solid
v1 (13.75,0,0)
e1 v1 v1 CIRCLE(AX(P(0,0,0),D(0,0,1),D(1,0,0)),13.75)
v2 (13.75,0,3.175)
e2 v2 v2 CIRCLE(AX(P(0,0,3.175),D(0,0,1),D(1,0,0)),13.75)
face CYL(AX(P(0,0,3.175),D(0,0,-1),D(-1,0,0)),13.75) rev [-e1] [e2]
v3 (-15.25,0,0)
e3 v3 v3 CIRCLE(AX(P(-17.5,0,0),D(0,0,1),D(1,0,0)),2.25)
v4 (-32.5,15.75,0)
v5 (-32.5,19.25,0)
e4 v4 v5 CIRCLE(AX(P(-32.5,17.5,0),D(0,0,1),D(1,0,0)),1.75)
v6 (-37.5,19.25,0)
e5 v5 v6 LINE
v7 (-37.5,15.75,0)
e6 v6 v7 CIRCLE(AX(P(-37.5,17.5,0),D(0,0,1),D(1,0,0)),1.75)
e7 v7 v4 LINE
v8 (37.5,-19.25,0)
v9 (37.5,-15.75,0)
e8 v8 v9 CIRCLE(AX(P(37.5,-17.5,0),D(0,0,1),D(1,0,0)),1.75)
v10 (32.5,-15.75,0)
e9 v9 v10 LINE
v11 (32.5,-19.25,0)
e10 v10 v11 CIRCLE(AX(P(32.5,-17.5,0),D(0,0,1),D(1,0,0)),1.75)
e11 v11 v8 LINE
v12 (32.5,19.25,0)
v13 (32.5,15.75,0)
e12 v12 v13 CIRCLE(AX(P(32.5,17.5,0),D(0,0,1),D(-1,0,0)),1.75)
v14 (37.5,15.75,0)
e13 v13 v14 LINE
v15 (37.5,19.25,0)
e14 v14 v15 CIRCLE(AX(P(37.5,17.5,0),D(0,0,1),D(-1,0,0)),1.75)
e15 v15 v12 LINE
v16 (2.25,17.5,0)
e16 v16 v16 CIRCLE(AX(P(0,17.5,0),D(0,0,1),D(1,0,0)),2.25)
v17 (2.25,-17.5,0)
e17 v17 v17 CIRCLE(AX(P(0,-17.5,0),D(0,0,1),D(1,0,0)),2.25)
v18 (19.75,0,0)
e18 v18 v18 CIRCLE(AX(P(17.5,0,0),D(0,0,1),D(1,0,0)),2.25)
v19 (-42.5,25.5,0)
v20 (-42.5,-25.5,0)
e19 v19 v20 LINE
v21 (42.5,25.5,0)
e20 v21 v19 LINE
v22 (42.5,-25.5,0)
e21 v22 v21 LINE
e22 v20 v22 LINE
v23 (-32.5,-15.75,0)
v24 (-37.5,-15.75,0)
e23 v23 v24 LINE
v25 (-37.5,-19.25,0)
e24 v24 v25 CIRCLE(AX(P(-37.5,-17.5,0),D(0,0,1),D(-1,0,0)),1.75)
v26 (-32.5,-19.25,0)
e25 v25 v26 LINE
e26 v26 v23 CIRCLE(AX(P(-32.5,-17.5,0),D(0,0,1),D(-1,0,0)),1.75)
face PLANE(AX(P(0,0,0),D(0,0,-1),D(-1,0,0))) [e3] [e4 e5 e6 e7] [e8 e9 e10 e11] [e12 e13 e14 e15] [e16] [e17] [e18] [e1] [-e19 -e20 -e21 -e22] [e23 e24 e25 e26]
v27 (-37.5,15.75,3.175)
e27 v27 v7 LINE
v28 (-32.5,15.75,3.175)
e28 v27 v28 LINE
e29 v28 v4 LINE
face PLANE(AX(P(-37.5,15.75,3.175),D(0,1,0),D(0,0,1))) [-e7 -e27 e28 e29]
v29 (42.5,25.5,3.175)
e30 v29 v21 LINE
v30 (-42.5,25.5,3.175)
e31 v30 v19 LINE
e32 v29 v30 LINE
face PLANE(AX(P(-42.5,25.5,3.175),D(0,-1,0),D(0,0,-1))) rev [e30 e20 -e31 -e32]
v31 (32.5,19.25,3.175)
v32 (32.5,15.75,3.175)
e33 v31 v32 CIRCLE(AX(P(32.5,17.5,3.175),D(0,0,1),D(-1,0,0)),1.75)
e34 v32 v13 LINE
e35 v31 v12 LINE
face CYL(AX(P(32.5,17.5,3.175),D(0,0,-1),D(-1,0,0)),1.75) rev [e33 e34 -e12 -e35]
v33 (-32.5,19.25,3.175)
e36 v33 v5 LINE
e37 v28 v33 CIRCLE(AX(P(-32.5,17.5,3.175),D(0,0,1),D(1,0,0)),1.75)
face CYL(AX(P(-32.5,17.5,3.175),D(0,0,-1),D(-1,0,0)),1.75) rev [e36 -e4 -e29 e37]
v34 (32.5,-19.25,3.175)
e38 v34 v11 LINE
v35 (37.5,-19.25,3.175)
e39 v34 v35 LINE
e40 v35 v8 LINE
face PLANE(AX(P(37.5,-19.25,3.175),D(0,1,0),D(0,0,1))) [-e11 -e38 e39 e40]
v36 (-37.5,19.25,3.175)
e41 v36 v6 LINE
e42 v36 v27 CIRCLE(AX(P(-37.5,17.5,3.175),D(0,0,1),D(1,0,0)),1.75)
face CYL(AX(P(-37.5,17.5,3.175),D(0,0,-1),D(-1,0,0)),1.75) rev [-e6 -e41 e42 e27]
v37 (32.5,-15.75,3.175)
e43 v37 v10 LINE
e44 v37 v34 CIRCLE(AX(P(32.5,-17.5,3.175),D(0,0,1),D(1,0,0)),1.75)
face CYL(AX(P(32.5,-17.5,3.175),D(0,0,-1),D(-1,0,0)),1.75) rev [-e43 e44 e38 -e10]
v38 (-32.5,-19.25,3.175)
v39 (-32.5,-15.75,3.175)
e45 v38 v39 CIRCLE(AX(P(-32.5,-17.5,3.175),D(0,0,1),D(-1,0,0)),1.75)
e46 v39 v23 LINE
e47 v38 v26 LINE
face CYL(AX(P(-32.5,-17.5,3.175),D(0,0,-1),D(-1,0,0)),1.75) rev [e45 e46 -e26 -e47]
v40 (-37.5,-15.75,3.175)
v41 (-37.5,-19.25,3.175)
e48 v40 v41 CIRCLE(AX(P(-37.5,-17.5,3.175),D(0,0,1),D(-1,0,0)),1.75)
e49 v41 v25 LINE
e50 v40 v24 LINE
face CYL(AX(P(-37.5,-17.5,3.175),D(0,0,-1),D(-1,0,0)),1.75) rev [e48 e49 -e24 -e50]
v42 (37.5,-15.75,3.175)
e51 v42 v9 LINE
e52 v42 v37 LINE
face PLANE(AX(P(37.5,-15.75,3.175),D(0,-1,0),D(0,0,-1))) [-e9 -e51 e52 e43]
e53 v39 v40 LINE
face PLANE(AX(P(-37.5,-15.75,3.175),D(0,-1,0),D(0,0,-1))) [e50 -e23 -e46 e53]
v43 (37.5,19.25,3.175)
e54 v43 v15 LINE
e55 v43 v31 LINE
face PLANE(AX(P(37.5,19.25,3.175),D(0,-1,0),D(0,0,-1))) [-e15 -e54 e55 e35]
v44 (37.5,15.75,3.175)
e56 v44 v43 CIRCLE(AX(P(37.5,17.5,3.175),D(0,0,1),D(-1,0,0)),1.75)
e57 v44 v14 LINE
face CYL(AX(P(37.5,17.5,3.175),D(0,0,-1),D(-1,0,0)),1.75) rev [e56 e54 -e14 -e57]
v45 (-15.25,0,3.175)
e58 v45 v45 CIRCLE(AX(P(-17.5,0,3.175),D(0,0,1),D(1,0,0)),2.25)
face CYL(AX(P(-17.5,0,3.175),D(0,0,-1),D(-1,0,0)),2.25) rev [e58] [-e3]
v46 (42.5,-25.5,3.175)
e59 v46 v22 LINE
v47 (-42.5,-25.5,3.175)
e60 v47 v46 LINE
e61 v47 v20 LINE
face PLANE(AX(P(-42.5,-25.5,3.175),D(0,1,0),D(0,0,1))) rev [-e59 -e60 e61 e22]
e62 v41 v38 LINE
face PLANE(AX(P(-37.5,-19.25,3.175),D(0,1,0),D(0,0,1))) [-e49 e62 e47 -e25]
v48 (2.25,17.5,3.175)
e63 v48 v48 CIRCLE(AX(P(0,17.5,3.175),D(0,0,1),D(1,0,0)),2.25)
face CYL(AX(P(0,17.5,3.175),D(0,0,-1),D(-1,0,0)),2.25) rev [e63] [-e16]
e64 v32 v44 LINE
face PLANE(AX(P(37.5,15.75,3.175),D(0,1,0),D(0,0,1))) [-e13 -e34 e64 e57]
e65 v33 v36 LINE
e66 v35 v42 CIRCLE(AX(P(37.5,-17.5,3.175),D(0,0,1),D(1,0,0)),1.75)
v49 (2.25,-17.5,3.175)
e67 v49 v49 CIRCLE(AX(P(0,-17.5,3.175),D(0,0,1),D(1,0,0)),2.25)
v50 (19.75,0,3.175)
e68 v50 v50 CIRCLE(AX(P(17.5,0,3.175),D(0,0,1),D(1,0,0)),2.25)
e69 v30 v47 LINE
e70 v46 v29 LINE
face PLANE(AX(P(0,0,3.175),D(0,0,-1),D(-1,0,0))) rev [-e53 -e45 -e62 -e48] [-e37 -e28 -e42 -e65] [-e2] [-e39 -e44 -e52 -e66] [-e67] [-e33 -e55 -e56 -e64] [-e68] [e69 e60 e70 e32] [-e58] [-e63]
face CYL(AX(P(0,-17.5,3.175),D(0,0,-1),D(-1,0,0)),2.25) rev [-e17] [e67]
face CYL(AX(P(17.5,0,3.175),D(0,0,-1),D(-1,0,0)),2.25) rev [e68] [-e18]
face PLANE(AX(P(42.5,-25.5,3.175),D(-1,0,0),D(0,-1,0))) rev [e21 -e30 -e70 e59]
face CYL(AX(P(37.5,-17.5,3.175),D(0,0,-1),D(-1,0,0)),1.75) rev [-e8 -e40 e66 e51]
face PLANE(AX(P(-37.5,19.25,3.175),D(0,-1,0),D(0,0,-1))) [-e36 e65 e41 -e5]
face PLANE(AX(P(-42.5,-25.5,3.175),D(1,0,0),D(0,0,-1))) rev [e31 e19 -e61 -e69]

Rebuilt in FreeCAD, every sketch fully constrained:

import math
import FreeCAD as App
import Part
import Sketcher
from FreeCAD import Vector
Q = App.Units.Quantity

doc = App.newDocument("Part")
params = doc.addObject("Spreadsheet::Sheet", "Params")
for row, (alias, value) in enumerate([
    ("sketch1_diameter", "4.5 mm"),
    ("sketch1_diameter2", "27.5 mm"),
    ("sketch1_width", "85 mm"),
    ("sketch1_width2", "5 mm"),
    ("sketch1_height", "51 mm"),
    ("pad1_length", "3.175 mm"),
], start=1):
    params.set(f"A{row}", alias)
    params.set(f"B{row}", "=" + value)
    params.setAlias(f"B{row}", alias)

body = doc.addObject("PartDesign::Body", "Body")

sketch1 = body.newObject("Sketcher::SketchObject", "Sketch")
sketch1.AttachmentSupport = (doc.getObject("XY_Plane"), [""])
sketch1.MapMode = "FlatFace"
sketch1.addGeometry(Part.LineSegment(Vector(-42.5, 25.5, 0), Vector(-42.5, -25.5, 0)), False)
sketch1.addGeometry(Part.LineSegment(Vector(-42.5, -25.5, 0), Vector(42.5, -25.5, 0)), False)
sketch1.addGeometry(Part.LineSegment(Vector(42.5, -25.5, 0), Vector(42.5, 25.5, 0)), False)
sketch1.addGeometry(Part.LineSegment(Vector(42.5, 25.5, 0), Vector(-42.5, 25.5, 0)), False)
sketch1.addGeometry(Part.LineSegment(Vector(-32.5, -19.25, 0), Vector(-37.5, -19.25, 0)), False)
sketch1.addGeometry(Part.ArcOfCircle(Part.Circle(Vector(-37.5, -17.5, 0), Vector(0, 0, 1), 1.75), math.radians(90), math.radians(270)), False)
sketch1.addGeometry(Part.LineSegment(Vector(-37.5, -15.75, 0), Vector(-32.5, -15.75, 0)), False)
sketch1.addGeometry(Part.ArcOfCircle(Part.Circle(Vector(-32.5, -17.5, 0), Vector(0, 0, 1), 1.75), math.radians(-90), math.radians(90)), False)
sketch1.addGeometry(Part.Circle(Vector(0, -17.5, 0), Vector(0, 0, 1), 2.25), False)
sketch1.addGeometry(Part.ArcOfCircle(Part.Circle(Vector(37.5, -17.5, 0), Vector(0, 0, 1), 1.75), math.radians(-90), math.radians(90)), False)
sketch1.addGeometry(Part.LineSegment(Vector(37.5, -19.25, 0), Vector(32.5, -19.25, 0)), False)
sketch1.addGeometry(Part.ArcOfCircle(Part.Circle(Vector(32.5, -17.5, 0), Vector(0, 0, 1), 1.75), math.radians(90), math.radians(270)), False)
sketch1.addGeometry(Part.LineSegment(Vector(32.5, -15.75, 0), Vector(37.5, -15.75, 0)), False)
sketch1.addGeometry(Part.Circle(Vector(-17.5, 0, 0), Vector(0, 0, 1), 2.25), False)
sketch1.addGeometry(Part.ArcOfCircle(Part.Circle(Vector(-37.5, 17.5, 0), Vector(0, 0, 1), 1.75), math.radians(90), math.radians(270)), False)
sketch1.addGeometry(Part.LineSegment(Vector(-37.5, 19.25, 0), Vector(-32.5, 19.25, 0)), False)
sketch1.addGeometry(Part.ArcOfCircle(Part.Circle(Vector(-32.5, 17.5, 0), Vector(0, 0, 1), 1.75), math.radians(-90), math.radians(90)), False)
sketch1.addGeometry(Part.LineSegment(Vector(-32.5, 15.75, 0), Vector(-37.5, 15.75, 0)), False)
sketch1.addGeometry(Part.Circle(Vector(0, 0, 0), Vector(0, 0, 1), 13.75), False)
sketch1.addGeometry(Part.Circle(Vector(17.5, 0, 0), Vector(0, 0, 1), 2.25), False)
sketch1.addGeometry(Part.Circle(Vector(0, 17.5, 0), Vector(0, 0, 1), 2.25), False)
sketch1.addGeometry(Part.LineSegment(Vector(32.5, 19.25, 0), Vector(37.5, 19.25, 0)), False)
sketch1.addGeometry(Part.ArcOfCircle(Part.Circle(Vector(37.5, 17.5, 0), Vector(0, 0, 1), 1.75), math.radians(-90), math.radians(90)), False)
sketch1.addGeometry(Part.LineSegment(Vector(37.5, 15.75, 0), Vector(32.5, 15.75, 0)), False)
sketch1.addGeometry(Part.ArcOfCircle(Part.Circle(Vector(32.5, 17.5, 0), Vector(0, 0, 1), 1.75), math.radians(90), math.radians(270)), False)
sketch1.addConstraint(Sketcher.Constraint("Coincident", 0, 2, 1, 1))
sketch1.addConstraint(Sketcher.Constraint("Coincident", 1, 2, 2, 1))
sketch1.addConstraint(Sketcher.Constraint("Coincident", 2, 2, 3, 1))
sketch1.addConstraint(Sketcher.Constraint("Coincident", 3, 2, 0, 1))
sketch1.addConstraint(Sketcher.Constraint("Tangent", 4, 2, 5, 2))
sketch1.addConstraint(Sketcher.Constraint("Tangent", 5, 1, 6, 1))
sketch1.addConstraint(Sketcher.Constraint("Tangent", 6, 2, 7, 2))
sketch1.addConstraint(Sketcher.Constraint("Tangent", 7, 1, 4, 1))
sketch1.addConstraint(Sketcher.Constraint("Tangent", 9, 1, 10, 1))
sketch1.addConstraint(Sketcher.Constraint("Tangent", 10, 2, 11, 2))
sketch1.addConstraint(Sketcher.Constraint("Tangent", 11, 1, 12, 1))
sketch1.addConstraint(Sketcher.Constraint("Tangent", 12, 2, 9, 2))
sketch1.addConstraint(Sketcher.Constraint("Tangent", 14, 1, 15, 1))
sketch1.addConstraint(Sketcher.Constraint("Tangent", 15, 2, 16, 2))
sketch1.addConstraint(Sketcher.Constraint("Tangent", 16, 1, 17, 1))
sketch1.addConstraint(Sketcher.Constraint("Tangent", 17, 2, 14, 2))
sketch1.addConstraint(Sketcher.Constraint("Tangent", 21, 2, 22, 2))
sketch1.addConstraint(Sketcher.Constraint("Tangent", 22, 1, 23, 1))
sketch1.addConstraint(Sketcher.Constraint("Tangent", 23, 2, 24, 2))
sketch1.addConstraint(Sketcher.Constraint("Tangent", 24, 1, 21, 1))
sketch1.addConstraint(Sketcher.Constraint("Vertical", 0))
sketch1.addConstraint(Sketcher.Constraint("Horizontal", 1))
sketch1.addConstraint(Sketcher.Constraint("Vertical", 2))
sketch1.addConstraint(Sketcher.Constraint("Horizontal", 3))
sketch1.addConstraint(Sketcher.Constraint("Horizontal", 4))
sketch1.addConstraint(Sketcher.Constraint("Horizontal", 6))
sketch1.addConstraint(Sketcher.Constraint("Horizontal", 10))
sketch1.addConstraint(Sketcher.Constraint("Horizontal", 12))
sketch1.addConstraint(Sketcher.Constraint("Horizontal", 15))
sketch1.addConstraint(Sketcher.Constraint("Horizontal", 17))
sketch1.addConstraint(Sketcher.Constraint("Horizontal", 21))
sketch1.addConstraint(Sketcher.Constraint("Horizontal", 23))
sketch1.addConstraint(Sketcher.Constraint("Coincident", 18, 3, -1, 1))
sketch1.addConstraint(Sketcher.Constraint("Equal", 7, 9))
sketch1.addConstraint(Sketcher.Constraint("Equal", 8, 13))
sketch1.addConstraint(Sketcher.Constraint("Equal", 11, 14))
sketch1.addConstraint(Sketcher.Constraint("Equal", 13, 19))
sketch1.addConstraint(Sketcher.Constraint("Equal", 19, 20))
sketch1.addConstraint(Sketcher.Constraint("Equal", 16, 22))
sketch1.addConstraint(Sketcher.Constraint("Symmetric", 9, 3, 14, 3, -1, 1))
sketch1.addConstraint(Sketcher.Constraint("Symmetric", 13, 3, 19, 3, -1, 1))
sketch1.addConstraint(Sketcher.Constraint("Symmetric", 8, 3, 20, 3, -1, 1))
sketch1.addConstraint(Sketcher.Constraint("Symmetric", 5, 3, 22, 3, -1, 1))
sketch1.addConstraint(Sketcher.Constraint("Symmetric", 0, 2, 2, 2, -1, 1))
sketch1.addConstraint(Sketcher.Constraint("Symmetric", 5, 3, 9, 3, -2))
sketch1.addConstraint(Sketcher.Constraint("PointOnObject", 8, 3, -2))
sketch1.addConstraint(Sketcher.Constraint("PointOnObject", 13, 3, -1))
sketch1.addConstraint(Sketcher.Constraint("Horizontal", 7, 3, 8, 3))
sketch1.addConstraint(Sketcher.Constraint("Vertical", 7, 3, 16, 3))
sketch1.addConstraint(Sketcher.Constraint("Vertical", 11, 3, 24, 3))
sketch1.addConstraint(Sketcher.Constraint("Equal", 6, 10))
sketch1.addConstraint(Sketcher.Constraint("Diameter", 8, Q("4.5 mm")))
sketch1.addConstraint(Sketcher.Constraint("Diameter", 18, Q("27.5 mm")))
sketch1.addConstraint(Sketcher.Constraint("DistanceX", 1, 1, 1, 2, Q("85 mm")))
sketch1.addConstraint(Sketcher.Constraint("DistanceX", 4, 2, 4, 1, Q("5 mm")))
sketch1.addConstraint(Sketcher.Constraint("DistanceY", 0, 2, 0, 1, Q("51 mm")))
sketch1.addConstraint(Sketcher.Constraint("Radius", 5, Q("1.75 mm")))
sketch1.addConstraint(Sketcher.Constraint("DistanceX", 7, 3, 9, 3, Q("70 mm")))
sketch1.addConstraint(Sketcher.Constraint("DistanceX", 7, 3, 13, 3, Q("15 mm")))
sketch1.addConstraint(Sketcher.Constraint("DistanceY", 5, 3, 14, 3, Q("35 mm")))
sketch1.setExpression("Constraints[51]", "Params.sketch1_diameter")
sketch1.setExpression("Constraints[52]", "Params.sketch1_diameter2")
sketch1.setExpression("Constraints[53]", "Params.sketch1_width")
sketch1.setExpression("Constraints[54]", "Params.sketch1_width2")
sketch1.setExpression("Constraints[55]", "Params.sketch1_height")
pad1 = body.newObject("PartDesign::Pad", "Pad")
pad1.Profile = sketch1
pad1.setExpression("Length", "Params.pad1_length")

doc.recompute()
